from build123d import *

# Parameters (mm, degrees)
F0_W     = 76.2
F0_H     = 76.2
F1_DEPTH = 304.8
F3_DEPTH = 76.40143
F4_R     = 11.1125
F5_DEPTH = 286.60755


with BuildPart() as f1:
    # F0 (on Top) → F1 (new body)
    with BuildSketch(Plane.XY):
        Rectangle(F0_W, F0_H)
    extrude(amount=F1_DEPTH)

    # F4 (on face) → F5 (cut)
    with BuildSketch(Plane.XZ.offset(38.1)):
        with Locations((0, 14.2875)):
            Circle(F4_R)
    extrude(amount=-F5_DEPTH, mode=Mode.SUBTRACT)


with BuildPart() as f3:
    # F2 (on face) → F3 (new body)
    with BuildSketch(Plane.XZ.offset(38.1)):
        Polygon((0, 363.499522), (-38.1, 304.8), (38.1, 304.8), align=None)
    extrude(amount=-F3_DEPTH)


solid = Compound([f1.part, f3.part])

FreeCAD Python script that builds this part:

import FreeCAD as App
import Part
import Sketcher
from FreeCAD import Vector
Q = App.Units.Quantity

doc = App.newDocument("Part")
body = doc.addObject("PartDesign::Body", "Body")

# Sketch on XY plane
sketch1 = body.newObject("Sketcher::SketchObject", "Sketch")
sketch1.AttachmentSupport = (doc.getObject("XY_Plane"), [""])
sketch1.MapMode = "FlatFace"
sketch1.addGeometry([
    Part.LineSegment(Vector(-38, 38, 0), Vector(-38, -38, 0)),
    Part.LineSegment(Vector(-38, -38, 0), Vector(38, -38, 0)),
    Part.LineSegment(Vector(38, -38, 0), Vector(38, 38, 0)),
    Part.LineSegment(Vector(38, 38, 0), Vector(-38, 38, 0)),
], False)
sketch1.addConstraint([
    Sketcher.Constraint("Coincident", 0, 2, 1, 1),
    Sketcher.Constraint("Coincident", 1, 2, 2, 1),
    Sketcher.Constraint("Coincident", 2, 2, 3, 1),
    Sketcher.Constraint("Coincident", 3, 2, 0, 1),
    Sketcher.Constraint("Vertical", 0),
    Sketcher.Constraint("Horizontal", 1),
    Sketcher.Constraint("Vertical", 2),
    Sketcher.Constraint("Horizontal", 3),
    Sketcher.Constraint("Symmetric", 0, 2, 2, 2, -1, 1),
    Sketcher.Constraint("Equal", 3, 0),
    Sketcher.Constraint("DistanceX", 1, 1, 1, 2, Q("3 in")),
])
pad1 = body.newObject("PartDesign::Pad", "Pad")
pad1.Profile = sketch1
pad1.Length = Q("12 in")

# Sketch on XZ plane
sketch2 = body.newObject("Sketcher::SketchObject", "Sketch001")
sketch2.AttachmentSupport = (doc.getObject("XZ_Plane"), [""])
sketch2.MapMode = "FlatFace"
sketch2.AttachmentOffset = App.Placement(Vector(0, 0, 1.5 * 25.4), App.Rotation())
sketch2.addGeometry(Part.Circle(Vector(0, 14, 0), Vector(0, 0, 1), 11), False)
sketch2.addConstraint([
    Sketcher.Constraint("PointOnObject", 0, 3, -2),
    Sketcher.Constraint("Diameter", 0, Q("0.875 in")),
    Sketcher.Constraint("DistanceY", -1, 1, 0, 3, Q("0.5625 in")),
])
pocket1 = body.newObject("PartDesign::Pocket", "Pocket")
pocket1.Profile = sketch2
pocket1.Length = 286.60755
body2 = doc.addObject("PartDesign::Body", "Body001")

# Sketch on XZ plane
sketch3 = body2.newObject("Sketcher::SketchObject", "Sketch002")
sketch3.AttachmentSupport = (doc.getObject("XZ_Plane001"), [""])
sketch3.MapMode = "FlatFace"
sketch3.AttachmentOffset = App.Placement(Vector(0, 0, 1.5 * 25.4), App.Rotation())
sketch3.addGeometry([
    Part.LineSegment(Vector(0, 363, 0), Vector(-38, 305, 0)),
    Part.LineSegment(Vector(-38, 305, 0), Vector(38, 305, 0)),
    Part.LineSegment(Vector(38, 305, 0), Vector(0, 363, 0)),
], False)
sketch3.addConstraint([
    Sketcher.Constraint("Coincident", 0, 2, 1, 1),
    Sketcher.Constraint("Coincident", 1, 2, 2, 1),
    Sketcher.Constraint("Coincident", 2, 2, 0, 1),
    Sketcher.Constraint("Horizontal", 1),
    Sketcher.Constraint("PointOnObject", 2, 2, -2),
    Sketcher.Constraint("Equal", 0, 2),
    Sketcher.Constraint("DistanceX", 1, 1, 1, 2, Q("3 in")),
    Sketcher.Constraint("DistanceY", -1, 1, 0, 2, Q("12 in")),
    Sketcher.Constraint("Distance", 0, Q("69.980311 mm")),
])
pad2 = body2.newObject("PartDesign::Pad", "Pad001")
pad2.Profile = sketch3
pad2.Length = 76.40143
pad2.Reversed = True

doc.recompute()
